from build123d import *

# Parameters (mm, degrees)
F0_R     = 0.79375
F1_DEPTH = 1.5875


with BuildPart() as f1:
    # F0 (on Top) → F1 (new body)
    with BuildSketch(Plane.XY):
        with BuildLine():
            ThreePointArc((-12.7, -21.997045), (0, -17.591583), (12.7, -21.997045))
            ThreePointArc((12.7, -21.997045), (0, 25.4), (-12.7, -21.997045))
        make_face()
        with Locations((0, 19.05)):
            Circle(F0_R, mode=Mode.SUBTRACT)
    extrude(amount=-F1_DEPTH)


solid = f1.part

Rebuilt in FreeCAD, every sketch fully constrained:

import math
import FreeCAD as App
import Part
import Sketcher
Q = App.Units.Quantity

doc = App.newDocument("Part")
body = doc.addObject("PartDesign::Body", "Body")

# Sketch on XY plane
sketch1 = doc.addObject("Sketcher::SketchObject", "Sketch")
body.addObject(sketch1)
sketch1.AttachmentSupport = (doc.XY_Plane, [""])
sketch1.MapMode = "FlatFace"
sketch1.addGeometry([
    Part.ArcOfCircle(Part.Circle(App.Vector(0, -38.1, 0), App.Vector(0, 0, 1), 20.5), math.radians(52), math.radians(128)),
    Part.ArcOfCircle(Part.Circle(App.Vector(0, 0, 0), App.Vector(0, 0, 1), 25.4), math.radians(-60), math.radians(240)),
    Part.Circle(App.Vector(0, 19.1, 0), App.Vector(0, 0, 1), 0.8),
], False)
sketch1.addConstraint([
    Sketcher.Constraint("Coincident", 0, 1, 1, 1),
    Sketcher.Constraint("Coincident", 1, 2, 0, 2),
    Sketcher.Constraint("Coincident", 1, 3, -1, 1),
    Sketcher.Constraint("PointOnObject", 0, 3, -2),
    Sketcher.Constraint("PointOnObject", 2, 3, -2),
    Sketcher.Constraint("Radius", 1, Q("1 in")),
    Sketcher.Constraint("Diameter", 2, Q("0.0625 in")),
    Sketcher.Constraint("DistanceX", 1, 2, 0, 1, Q("1 in")),
    Sketcher.Constraint("DistanceY", 0, 3, -1, 1, Q("1.5 in")),
    Sketcher.Constraint("DistanceY", -1, 1, 2, 3, Q("0.75 in")),
])
pad1 = doc.addObject("PartDesign::Pad", "Pad")
body.addObject(pad1)
pad1.Profile = sketch1
pad1.Length = Q("0.0625 in")
pad1.Reversed = True

doc.recompute()
